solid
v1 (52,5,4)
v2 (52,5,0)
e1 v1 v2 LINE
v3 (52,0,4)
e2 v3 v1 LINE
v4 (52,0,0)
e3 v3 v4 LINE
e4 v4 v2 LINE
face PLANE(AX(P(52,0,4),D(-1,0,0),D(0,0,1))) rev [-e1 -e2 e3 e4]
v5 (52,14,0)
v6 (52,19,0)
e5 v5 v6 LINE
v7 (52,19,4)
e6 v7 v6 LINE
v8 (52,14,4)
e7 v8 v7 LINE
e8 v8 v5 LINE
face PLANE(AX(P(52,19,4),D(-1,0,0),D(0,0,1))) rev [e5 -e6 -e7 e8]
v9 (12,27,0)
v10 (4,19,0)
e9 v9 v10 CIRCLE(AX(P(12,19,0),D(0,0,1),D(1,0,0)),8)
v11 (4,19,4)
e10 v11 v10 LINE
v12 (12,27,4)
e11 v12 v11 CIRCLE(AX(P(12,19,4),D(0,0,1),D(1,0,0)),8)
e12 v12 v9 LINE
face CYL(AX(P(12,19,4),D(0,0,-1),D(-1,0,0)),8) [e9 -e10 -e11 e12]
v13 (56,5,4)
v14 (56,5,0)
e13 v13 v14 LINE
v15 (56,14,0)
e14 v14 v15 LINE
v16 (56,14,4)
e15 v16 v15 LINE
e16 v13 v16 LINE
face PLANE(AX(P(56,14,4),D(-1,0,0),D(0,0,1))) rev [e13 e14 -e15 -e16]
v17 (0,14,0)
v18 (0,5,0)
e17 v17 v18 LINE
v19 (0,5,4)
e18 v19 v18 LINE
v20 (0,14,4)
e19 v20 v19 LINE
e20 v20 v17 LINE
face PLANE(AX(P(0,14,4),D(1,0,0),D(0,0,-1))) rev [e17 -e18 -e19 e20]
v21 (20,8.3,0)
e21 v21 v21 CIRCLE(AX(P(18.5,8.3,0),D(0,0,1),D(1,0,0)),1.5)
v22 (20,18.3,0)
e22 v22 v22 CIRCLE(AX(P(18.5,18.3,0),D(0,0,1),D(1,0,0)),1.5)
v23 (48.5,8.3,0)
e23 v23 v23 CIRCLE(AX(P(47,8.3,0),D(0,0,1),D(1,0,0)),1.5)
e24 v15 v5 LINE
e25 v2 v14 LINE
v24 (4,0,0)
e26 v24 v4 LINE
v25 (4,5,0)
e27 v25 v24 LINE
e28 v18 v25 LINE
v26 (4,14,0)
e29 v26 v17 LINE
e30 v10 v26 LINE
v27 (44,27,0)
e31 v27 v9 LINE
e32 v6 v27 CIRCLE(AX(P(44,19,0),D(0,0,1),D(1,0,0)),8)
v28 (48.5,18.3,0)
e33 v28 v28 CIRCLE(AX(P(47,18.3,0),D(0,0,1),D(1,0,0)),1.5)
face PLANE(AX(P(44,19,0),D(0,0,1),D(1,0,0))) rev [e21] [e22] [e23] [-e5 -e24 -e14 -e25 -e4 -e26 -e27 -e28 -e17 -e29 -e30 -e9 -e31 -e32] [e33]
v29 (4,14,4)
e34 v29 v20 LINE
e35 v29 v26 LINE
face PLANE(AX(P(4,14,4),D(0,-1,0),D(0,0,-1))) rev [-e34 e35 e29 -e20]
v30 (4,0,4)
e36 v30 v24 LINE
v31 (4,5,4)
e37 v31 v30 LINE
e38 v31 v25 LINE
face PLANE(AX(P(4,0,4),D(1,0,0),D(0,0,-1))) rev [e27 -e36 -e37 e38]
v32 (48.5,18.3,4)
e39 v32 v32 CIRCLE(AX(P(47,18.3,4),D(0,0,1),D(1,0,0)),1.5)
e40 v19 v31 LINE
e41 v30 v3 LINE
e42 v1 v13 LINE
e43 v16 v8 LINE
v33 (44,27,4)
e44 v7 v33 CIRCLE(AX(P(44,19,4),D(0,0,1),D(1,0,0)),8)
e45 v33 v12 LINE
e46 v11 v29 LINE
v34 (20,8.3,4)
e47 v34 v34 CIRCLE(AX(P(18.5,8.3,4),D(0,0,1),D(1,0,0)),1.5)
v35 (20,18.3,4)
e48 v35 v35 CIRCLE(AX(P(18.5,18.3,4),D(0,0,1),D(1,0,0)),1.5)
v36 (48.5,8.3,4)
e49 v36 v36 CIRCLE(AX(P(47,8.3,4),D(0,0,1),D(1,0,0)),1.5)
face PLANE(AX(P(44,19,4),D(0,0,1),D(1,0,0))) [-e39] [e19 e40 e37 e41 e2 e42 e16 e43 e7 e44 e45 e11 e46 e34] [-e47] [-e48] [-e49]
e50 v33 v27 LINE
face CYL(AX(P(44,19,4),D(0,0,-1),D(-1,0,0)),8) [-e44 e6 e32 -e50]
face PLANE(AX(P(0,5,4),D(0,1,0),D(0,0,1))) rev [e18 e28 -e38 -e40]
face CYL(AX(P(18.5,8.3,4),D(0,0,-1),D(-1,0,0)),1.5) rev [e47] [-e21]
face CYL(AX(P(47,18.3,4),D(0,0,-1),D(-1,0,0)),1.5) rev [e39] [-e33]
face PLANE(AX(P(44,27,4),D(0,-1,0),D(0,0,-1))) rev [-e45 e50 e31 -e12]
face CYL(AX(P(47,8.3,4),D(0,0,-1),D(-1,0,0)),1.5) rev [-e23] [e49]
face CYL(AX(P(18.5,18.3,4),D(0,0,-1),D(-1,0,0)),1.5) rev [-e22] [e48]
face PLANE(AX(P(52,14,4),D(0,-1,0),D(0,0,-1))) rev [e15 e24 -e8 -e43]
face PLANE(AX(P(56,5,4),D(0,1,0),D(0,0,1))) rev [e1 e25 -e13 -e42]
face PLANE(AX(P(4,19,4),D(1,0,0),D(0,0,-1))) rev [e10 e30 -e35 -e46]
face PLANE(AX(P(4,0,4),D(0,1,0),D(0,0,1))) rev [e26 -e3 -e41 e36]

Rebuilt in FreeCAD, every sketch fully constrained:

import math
import FreeCAD as App
import Part
import Sketcher

V = App.Vector

doc = App.newDocument("Part")
body = doc.addObject("PartDesign::Body", "Body")

# Sketch on XY plane
sketch1 = body.newObject("Sketcher::SketchObject", "Sketch")
sketch1.AttachmentSupport = (doc.getObject("XY_Plane"), [""])
sketch1.MapMode = "FlatFace"
sketch1.addGeometry(Part.LineSegment(V(4, 14, 0), V(0, 14, 0)), False)
sketch1.addGeometry(Part.LineSegment(V(0, 14, 0), V(0, 5, 0)), False)
sketch1.addGeometry(Part.LineSegment(V(0, 5, 0), V(4, 5, 0)), False)
sketch1.addGeometry(Part.LineSegment(V(4, 5, 0), V(4, 0, 0)), False)
sketch1.addGeometry(Part.LineSegment(V(4, 0, 0), V(52, 0, 0)), False)
sketch1.addGeometry(Part.LineSegment(V(52, 0, 0), V(52, 5, 0)), False)
sketch1.addGeometry(Part.LineSegment(V(52, 5, 0), V(56, 5, 0)), False)
sketch1.addGeometry(Part.LineSegment(V(56, 5, 0), V(56, 14, 0)), False)
sketch1.addGeometry(Part.LineSegment(V(56, 14, 0), V(52, 14, 0)), False)
sketch1.addGeometry(Part.LineSegment(V(52, 14, 0), V(52, 19, 0)), False)
sketch1.addGeometry(Part.ArcOfCircle(Part.Circle(V(44, 19, 0), V(0, 0, 1), 8), math.radians(0), math.radians(90)), False)
sketch1.addGeometry(Part.LineSegment(V(44, 27, 0), V(12, 27, 0)), False)
sketch1.addGeometry(Part.ArcOfCircle(Part.Circle(V(12, 19, 0), V(0, 0, 1), 8), math.radians(90), math.radians(180)), False)
sketch1.addGeometry(Part.LineSegment(V(4, 19, 0), V(4, 14, 0)), False)
sketch1.addGeometry(Part.Circle(V(18.5, 8.3, 0), V(0, 0, 1), 1.5), False)
sketch1.addGeometry(Part.Circle(V(47, 8.3, 0), V(0, 0, 1), 1.5), False)
sketch1.addGeometry(Part.Circle(V(18.5, 18.3, 0), V(0, 0, 1), 1.5), False)
sketch1.addGeometry(Part.Circle(V(47, 18.3, 0), V(0, 0, 1), 1.5), False)
sketch1.addConstraint(Sketcher.Constraint("Coincident", 0, 2, 1, 1))
sketch1.addConstraint(Sketcher.Constraint("Coincident", 1, 2, 2, 1))
sketch1.addConstraint(Sketcher.Constraint("Coincident", 2, 2, 3, 1))
sketch1.addConstraint(Sketcher.Constraint("Coincident", 3, 2, 4, 1))
sketch1.addConstraint(Sketcher.Constraint("Coincident", 4, 2, 5, 1))
sketch1.addConstraint(Sketcher.Constraint("Coincident", 5, 2, 6, 1))
sketch1.addConstraint(Sketcher.Constraint("Coincident", 6, 2, 7, 1))
sketch1.addConstraint(Sketcher.Constraint("Coincident", 7, 2, 8, 1))
sketch1.addConstraint(Sketcher.Constraint("Coincident", 8, 2, 9, 1))
sketch1.addConstraint(Sketcher.Constraint("Tangent", 9, 2, 10, 1))
sketch1.addConstraint(Sketcher.Constraint("Tangent", 10, 2, 11, 1))
sketch1.addConstraint(Sketcher.Constraint("Tangent", 11, 2, 12, 1))
sketch1.addConstraint(Sketcher.Constraint("Tangent", 12, 2, 13, 1))
sketch1.addConstraint(Sketcher.Constraint("Coincident", 13, 2, 0, 1))
sketch1.addConstraint(Sketcher.Constraint("Horizontal", 0))
sketch1.addConstraint(Sketcher.Constraint("Vertical", 1))
sketch1.addConstraint(Sketcher.Constraint("Horizontal", 2))
sketch1.addConstraint(Sketcher.Constraint("Vertical", 3))
sketch1.addConstraint(Sketcher.Constraint("Horizontal", 4))
sketch1.addConstraint(Sketcher.Constraint("Vertical", 5))
sketch1.addConstraint(Sketcher.Constraint("Horizontal", 6))
sketch1.addConstraint(Sketcher.Constraint("Vertical", 7))
sketch1.addConstraint(Sketcher.Constraint("Horizontal", 8))
sketch1.addConstraint(Sketcher.Constraint("Vertical", 9))
sketch1.addConstraint(Sketcher.Constraint("Horizontal", 11))
sketch1.addConstraint(Sketcher.Constraint("Vertical", 13))
sketch1.addConstraint(Sketcher.Constraint("Equal", 10, 12))
sketch1.addConstraint(Sketcher.Constraint("Equal", 14, 15))
sketch1.addConstraint(Sketcher.Constraint("Equal", 15, 16))
sketch1.addConstraint(Sketcher.Constraint("Equal", 16, 17))
sketch1.addConstraint(Sketcher.Constraint("PointOnObject", 0, 2, -2))
sketch1.addConstraint(Sketcher.Constraint("PointOnObject", 3, 2, -1))
sketch1.addConstraint(Sketcher.Constraint("Horizontal", 14, 3, 15, 3))
sketch1.addConstraint(Sketcher.Constraint("Horizontal", 16, 3, 17, 3))
sketch1.addConstraint(Sketcher.Constraint("Horizontal", 2, 2, 5, 2))
sketch1.addConstraint(Sketcher.Constraint("Horizontal", 0, 2, 7, 2))
sketch1.addConstraint(Sketcher.Constraint("Vertical", 14, 3, 16, 3))
sketch1.addConstraint(Sketcher.Constraint("Vertical", 15, 3, 17, 3))
sketch1.addConstraint(Sketcher.Constraint("Vertical", 5, 2, 8, 2))
sketch1.addConstraint(Sketcher.Constraint("Vertical", 3, 2, 12, 2))
sketch1.addConstraint(Sketcher.Constraint("Equal", 2, 6))
sketch1.addConstraint(Sketcher.Constraint("Equal", 5, 9))
sketch1.addConstraint(Sketcher.Constraint("Diameter", 14, 3.0))
sketch1.addConstraint(Sketcher.Constraint("Radius", 10, 8.0))
sketch1.addConstraint(Sketcher.Constraint("DistanceX", 0, 2, 0, 1, 4.0))
sketch1.addConstraint(Sketcher.Constraint("DistanceX", 4, 1, 4, 2, 48.0))
sketch1.addConstraint(Sketcher.Constraint("DistanceY", 1, 2, 1, 1, 9.0))
sketch1.addConstraint(Sketcher.Constraint("DistanceY", 3, 2, 3, 1, 5.0))
sketch1.addConstraint(Sketcher.Constraint("DistanceX", -1, 1, 15, 3, 47.0))
sketch1.addConstraint(Sketcher.Constraint("DistanceY", 14, 3, 16, 3, 10.0))
sketch1.addConstraint(Sketcher.Constraint("DistanceX", -1, 1, 14, 3, 18.5))
sketch1.addConstraint(Sketcher.Constraint("DistanceY", -1, 1, 14, 3, 8.3))
pad1 = body.newObject("PartDesign::Pad", "Pad")
pad1.Profile = sketch1
pad1.Length = 4

doc.recompute()
